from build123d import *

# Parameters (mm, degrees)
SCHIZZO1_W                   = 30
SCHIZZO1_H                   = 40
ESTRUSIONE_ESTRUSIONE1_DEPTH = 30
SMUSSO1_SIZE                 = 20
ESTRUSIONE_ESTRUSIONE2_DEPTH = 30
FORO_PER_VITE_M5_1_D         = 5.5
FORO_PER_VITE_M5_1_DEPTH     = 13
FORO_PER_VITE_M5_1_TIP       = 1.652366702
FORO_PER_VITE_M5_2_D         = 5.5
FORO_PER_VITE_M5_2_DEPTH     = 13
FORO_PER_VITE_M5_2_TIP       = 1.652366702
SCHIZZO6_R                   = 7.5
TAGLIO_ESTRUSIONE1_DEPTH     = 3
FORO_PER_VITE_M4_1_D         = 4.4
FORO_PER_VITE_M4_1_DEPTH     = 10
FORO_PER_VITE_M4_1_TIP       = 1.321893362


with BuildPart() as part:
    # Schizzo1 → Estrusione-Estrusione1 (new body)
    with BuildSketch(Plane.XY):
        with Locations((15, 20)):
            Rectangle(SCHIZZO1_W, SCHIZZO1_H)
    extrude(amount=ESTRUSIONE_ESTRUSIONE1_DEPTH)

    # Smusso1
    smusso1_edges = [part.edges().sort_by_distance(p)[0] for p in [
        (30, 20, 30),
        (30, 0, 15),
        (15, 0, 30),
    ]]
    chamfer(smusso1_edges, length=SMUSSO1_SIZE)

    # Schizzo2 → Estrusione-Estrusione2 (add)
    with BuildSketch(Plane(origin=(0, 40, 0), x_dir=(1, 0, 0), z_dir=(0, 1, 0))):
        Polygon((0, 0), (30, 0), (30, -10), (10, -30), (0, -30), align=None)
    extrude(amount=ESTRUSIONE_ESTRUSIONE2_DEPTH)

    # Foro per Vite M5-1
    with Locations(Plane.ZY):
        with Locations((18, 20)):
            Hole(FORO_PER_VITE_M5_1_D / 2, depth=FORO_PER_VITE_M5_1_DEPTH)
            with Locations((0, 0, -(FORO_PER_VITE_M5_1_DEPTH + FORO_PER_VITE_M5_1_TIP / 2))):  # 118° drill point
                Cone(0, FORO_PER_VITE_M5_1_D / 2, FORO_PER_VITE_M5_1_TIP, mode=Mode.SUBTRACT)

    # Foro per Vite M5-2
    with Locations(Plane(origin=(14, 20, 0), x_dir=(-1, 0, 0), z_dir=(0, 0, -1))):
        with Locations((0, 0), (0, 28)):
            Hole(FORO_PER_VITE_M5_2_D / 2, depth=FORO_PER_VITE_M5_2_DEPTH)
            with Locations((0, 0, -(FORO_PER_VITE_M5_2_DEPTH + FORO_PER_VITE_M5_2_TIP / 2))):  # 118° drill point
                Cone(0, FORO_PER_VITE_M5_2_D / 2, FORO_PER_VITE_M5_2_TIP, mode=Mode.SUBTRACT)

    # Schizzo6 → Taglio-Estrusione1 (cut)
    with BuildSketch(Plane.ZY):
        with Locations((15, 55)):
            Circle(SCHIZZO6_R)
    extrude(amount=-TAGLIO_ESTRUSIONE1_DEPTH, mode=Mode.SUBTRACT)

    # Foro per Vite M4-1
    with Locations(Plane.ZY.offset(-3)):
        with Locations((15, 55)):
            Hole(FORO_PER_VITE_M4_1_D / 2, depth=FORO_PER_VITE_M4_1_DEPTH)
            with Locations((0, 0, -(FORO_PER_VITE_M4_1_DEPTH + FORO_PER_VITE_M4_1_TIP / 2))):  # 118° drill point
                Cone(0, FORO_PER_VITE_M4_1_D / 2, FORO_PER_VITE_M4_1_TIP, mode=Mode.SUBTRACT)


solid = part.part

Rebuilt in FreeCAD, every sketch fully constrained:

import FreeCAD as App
import Part
import Sketcher

V = App.Vector


def edges_at(feature, points):
    """Names of the edges that pass closest to the given points."""
    edges = feature.Shape.Edges
    near = lambda p: min(range(len(edges)), key=lambda i: edges[i].distToShape(Part.Vertex(*p))[0])
    return sorted({f"Edge{near(p) + 1}" for p in points})


def add_polygon(sketch, points):
    """Adds a closed chain of lines whose ends are joined by coincident constraints."""
    first, n = sketch.GeometryCount, len(points)
    for a, b in zip(points, points[1:] + points[:1]):
        sketch.addGeometry(Part.LineSegment(App.Vector(*a, 0), App.Vector(*b, 0)), False)
    for i in range(n):
        sketch.addConstraint(Sketcher.Constraint("Coincident", first + i, 2, first + (i + 1) % n, 1))

doc = App.newDocument("Part")
body = doc.addObject("PartDesign::Body", "Body")

sketch1 = body.newObject("Sketcher::SketchObject", "Sketch")
sketch1.AttachmentSupport = (doc.getObject("XY_Plane"), [""])
sketch1.MapMode = "FlatFace"
add_polygon(sketch1, [(0, 40), (0, 0), (30, 0), (30, 40)])
sketch1.addConstraint([
    Sketcher.Constraint("Vertical", 0),
    Sketcher.Constraint("Horizontal", 1),
    Sketcher.Constraint("Vertical", 2),
    Sketcher.Constraint("Horizontal", 3),
    Sketcher.Constraint("Coincident", 0, 2, -1, 1),
    Sketcher.Constraint("DistanceX", 1, 1, 1, 2, 30.0),
    Sketcher.Constraint("DistanceY", 0, 2, 0, 1, 40.0),
])
pad1 = body.newObject("PartDesign::Pad", "Pad")
pad1.Profile = sketch1
pad1.Length = 30
doc.recompute()

chamfer = body.newObject("PartDesign::Chamfer", "Chamfer")
chamfer.Base = (pad1, edges_at(pad1, [(30, 20, 30), (30, 0, 15), (15, 0, 30)]))
chamfer.Size = 20

sketch2 = body.newObject("Sketcher::SketchObject", "Sketch001")
sketch2.AttachmentSupport = (doc.getObject("XZ_Plane"), [""])
sketch2.MapMode = "FlatFace"
sketch2.AttachmentOffset = App.Placement(V(0, 0, -40), App.Rotation())
add_polygon(sketch2, [(30, 0), (0, 0), (0, 30), (10, 30), (30, 10)])
sketch2.addConstraint([
    Sketcher.Constraint("Horizontal", 0),
    Sketcher.Constraint("Vertical", 1),
    Sketcher.Constraint("Horizontal", 2),
    Sketcher.Constraint("Vertical", 4),
    Sketcher.Constraint("Coincident", 0, 2, -1, 1),
    Sketcher.Constraint("Equal", 0, 1),
    Sketcher.Constraint("Equal", 2, 4),
    Sketcher.Constraint("DistanceX", 0, 2, 0, 1, 30.0),
    Sketcher.Constraint("DistanceX", 2, 1, 2, 2, 10.0),
])
pad2 = body.newObject("PartDesign::Pad", "Pad001")
pad2.Profile = sketch2
pad2.Length = 30
pad2.Reversed = True

sketch3 = body.newObject("Sketcher::SketchObject", "Sketch002")
sketch3.AttachmentSupport = (doc.getObject("YZ_Plane"), [""])
sketch3.MapMode = "FlatFace"
sketch3.addGeometry(Part.Circle(V(20, 18, 0), V(0, 0, 1), 2.8), False)
sketch3.addConstraint([
    Sketcher.Constraint("Diameter", 0, 5.5),
    Sketcher.Constraint("DistanceX", -1, 1, 0, 3, 20.0),
    Sketcher.Constraint("DistanceY", -1, 1, 0, 3, 18.0),
])
doc.recompute()
hole = body.newObject("PartDesign::Hole", "Hole")
hole.Profile = sketch3
hole.ThreadType = "None"
hole.Diameter = 5.5
hole.DepthType = "Dimension"
hole.Depth = 13
hole.DrillPoint = "Angled"
hole.DrillPointAngle = 118
hole.Reversed = True

sketch4 = body.newObject("Sketcher::SketchObject", "Sketch003")
sketch4.AttachmentSupport = (doc.getObject("XY_Plane"), [""])
sketch4.MapMode = "FlatFace"
sketch4.addGeometry([
    Part.Circle(V(14, 20, 0), V(0, 0, 1), 2.8),
    Part.Circle(V(14, 48, 0), V(0, 0, 1), 2.8),
], False)
sketch4.addConstraint([
    Sketcher.Constraint("Equal", 0, 1),
    Sketcher.Constraint("Vertical", 0, 3, 1, 3),
    Sketcher.Constraint("Diameter", 0, 5.5),
    Sketcher.Constraint("DistanceX", -1, 1, 0, 3, 14.0),
    Sketcher.Constraint("DistanceY", -1, 1, 0, 3, 20.0),
    Sketcher.Constraint("DistanceY", -1, 1, 1, 3, 48.0),
])
doc.recompute()
hole2 = body.newObject("PartDesign::Hole", "Hole001")
hole2.Profile = sketch4
hole2.ThreadType = "None"
hole2.Diameter = 5.5
hole2.DepthType = "Dimension"
hole2.Depth = 13
hole2.DrillPoint = "Angled"
hole2.DrillPointAngle = 118
hole2.Reversed = True

sketch5 = body.newObject("Sketcher::SketchObject", "Sketch004")
sketch5.AttachmentSupport = (doc.getObject("YZ_Plane"), [""])
sketch5.MapMode = "FlatFace"
sketch5.addGeometry(Part.Circle(V(55, 15, 0), V(0, 0, 1), 8), False)
sketch5.addConstraint([
    Sketcher.Constraint("Diameter", 0, 15.0),
    Sketcher.Constraint("DistanceX", -1, 1, 0, 3, 55.0),
    Sketcher.Constraint("DistanceY", -1, 1, 0, 3, 15.0),
])
pocket1 = body.newObject("PartDesign::Pocket", "Pocket")
pocket1.Profile = sketch5
pocket1.Length = 3
pocket1.Reversed = True

sketch6 = body.newObject("Sketcher::SketchObject", "Sketch005")
sketch6.AttachmentSupport = (doc.getObject("YZ_Plane"), [""])
sketch6.MapMode = "FlatFace"
sketch6.AttachmentOffset = App.Placement(V(0, 0, 3), App.Rotation())
sketch6.addGeometry(Part.Circle(V(55, 15, 0), V(0, 0, 1), 2.2), False)
sketch6.addConstraint([
    Sketcher.Constraint("Diameter", 0, 4.4),
    Sketcher.Constraint("DistanceX", -1, 1, 0, 3, 55.0),
    Sketcher.Constraint("DistanceY", -1, 1, 0, 3, 15.0),
])
doc.recompute()
hole3 = body.newObject("PartDesign::Hole", "Hole002")
hole3.Profile = sketch6
hole3.ThreadType = "None"
hole3.Diameter = 4.4
hole3.DepthType = "Dimension"
hole3.Depth = 10
hole3.DrillPoint = "Angled"
hole3.DrillPointAngle = 118
hole3.Reversed = True

doc.recompute()
